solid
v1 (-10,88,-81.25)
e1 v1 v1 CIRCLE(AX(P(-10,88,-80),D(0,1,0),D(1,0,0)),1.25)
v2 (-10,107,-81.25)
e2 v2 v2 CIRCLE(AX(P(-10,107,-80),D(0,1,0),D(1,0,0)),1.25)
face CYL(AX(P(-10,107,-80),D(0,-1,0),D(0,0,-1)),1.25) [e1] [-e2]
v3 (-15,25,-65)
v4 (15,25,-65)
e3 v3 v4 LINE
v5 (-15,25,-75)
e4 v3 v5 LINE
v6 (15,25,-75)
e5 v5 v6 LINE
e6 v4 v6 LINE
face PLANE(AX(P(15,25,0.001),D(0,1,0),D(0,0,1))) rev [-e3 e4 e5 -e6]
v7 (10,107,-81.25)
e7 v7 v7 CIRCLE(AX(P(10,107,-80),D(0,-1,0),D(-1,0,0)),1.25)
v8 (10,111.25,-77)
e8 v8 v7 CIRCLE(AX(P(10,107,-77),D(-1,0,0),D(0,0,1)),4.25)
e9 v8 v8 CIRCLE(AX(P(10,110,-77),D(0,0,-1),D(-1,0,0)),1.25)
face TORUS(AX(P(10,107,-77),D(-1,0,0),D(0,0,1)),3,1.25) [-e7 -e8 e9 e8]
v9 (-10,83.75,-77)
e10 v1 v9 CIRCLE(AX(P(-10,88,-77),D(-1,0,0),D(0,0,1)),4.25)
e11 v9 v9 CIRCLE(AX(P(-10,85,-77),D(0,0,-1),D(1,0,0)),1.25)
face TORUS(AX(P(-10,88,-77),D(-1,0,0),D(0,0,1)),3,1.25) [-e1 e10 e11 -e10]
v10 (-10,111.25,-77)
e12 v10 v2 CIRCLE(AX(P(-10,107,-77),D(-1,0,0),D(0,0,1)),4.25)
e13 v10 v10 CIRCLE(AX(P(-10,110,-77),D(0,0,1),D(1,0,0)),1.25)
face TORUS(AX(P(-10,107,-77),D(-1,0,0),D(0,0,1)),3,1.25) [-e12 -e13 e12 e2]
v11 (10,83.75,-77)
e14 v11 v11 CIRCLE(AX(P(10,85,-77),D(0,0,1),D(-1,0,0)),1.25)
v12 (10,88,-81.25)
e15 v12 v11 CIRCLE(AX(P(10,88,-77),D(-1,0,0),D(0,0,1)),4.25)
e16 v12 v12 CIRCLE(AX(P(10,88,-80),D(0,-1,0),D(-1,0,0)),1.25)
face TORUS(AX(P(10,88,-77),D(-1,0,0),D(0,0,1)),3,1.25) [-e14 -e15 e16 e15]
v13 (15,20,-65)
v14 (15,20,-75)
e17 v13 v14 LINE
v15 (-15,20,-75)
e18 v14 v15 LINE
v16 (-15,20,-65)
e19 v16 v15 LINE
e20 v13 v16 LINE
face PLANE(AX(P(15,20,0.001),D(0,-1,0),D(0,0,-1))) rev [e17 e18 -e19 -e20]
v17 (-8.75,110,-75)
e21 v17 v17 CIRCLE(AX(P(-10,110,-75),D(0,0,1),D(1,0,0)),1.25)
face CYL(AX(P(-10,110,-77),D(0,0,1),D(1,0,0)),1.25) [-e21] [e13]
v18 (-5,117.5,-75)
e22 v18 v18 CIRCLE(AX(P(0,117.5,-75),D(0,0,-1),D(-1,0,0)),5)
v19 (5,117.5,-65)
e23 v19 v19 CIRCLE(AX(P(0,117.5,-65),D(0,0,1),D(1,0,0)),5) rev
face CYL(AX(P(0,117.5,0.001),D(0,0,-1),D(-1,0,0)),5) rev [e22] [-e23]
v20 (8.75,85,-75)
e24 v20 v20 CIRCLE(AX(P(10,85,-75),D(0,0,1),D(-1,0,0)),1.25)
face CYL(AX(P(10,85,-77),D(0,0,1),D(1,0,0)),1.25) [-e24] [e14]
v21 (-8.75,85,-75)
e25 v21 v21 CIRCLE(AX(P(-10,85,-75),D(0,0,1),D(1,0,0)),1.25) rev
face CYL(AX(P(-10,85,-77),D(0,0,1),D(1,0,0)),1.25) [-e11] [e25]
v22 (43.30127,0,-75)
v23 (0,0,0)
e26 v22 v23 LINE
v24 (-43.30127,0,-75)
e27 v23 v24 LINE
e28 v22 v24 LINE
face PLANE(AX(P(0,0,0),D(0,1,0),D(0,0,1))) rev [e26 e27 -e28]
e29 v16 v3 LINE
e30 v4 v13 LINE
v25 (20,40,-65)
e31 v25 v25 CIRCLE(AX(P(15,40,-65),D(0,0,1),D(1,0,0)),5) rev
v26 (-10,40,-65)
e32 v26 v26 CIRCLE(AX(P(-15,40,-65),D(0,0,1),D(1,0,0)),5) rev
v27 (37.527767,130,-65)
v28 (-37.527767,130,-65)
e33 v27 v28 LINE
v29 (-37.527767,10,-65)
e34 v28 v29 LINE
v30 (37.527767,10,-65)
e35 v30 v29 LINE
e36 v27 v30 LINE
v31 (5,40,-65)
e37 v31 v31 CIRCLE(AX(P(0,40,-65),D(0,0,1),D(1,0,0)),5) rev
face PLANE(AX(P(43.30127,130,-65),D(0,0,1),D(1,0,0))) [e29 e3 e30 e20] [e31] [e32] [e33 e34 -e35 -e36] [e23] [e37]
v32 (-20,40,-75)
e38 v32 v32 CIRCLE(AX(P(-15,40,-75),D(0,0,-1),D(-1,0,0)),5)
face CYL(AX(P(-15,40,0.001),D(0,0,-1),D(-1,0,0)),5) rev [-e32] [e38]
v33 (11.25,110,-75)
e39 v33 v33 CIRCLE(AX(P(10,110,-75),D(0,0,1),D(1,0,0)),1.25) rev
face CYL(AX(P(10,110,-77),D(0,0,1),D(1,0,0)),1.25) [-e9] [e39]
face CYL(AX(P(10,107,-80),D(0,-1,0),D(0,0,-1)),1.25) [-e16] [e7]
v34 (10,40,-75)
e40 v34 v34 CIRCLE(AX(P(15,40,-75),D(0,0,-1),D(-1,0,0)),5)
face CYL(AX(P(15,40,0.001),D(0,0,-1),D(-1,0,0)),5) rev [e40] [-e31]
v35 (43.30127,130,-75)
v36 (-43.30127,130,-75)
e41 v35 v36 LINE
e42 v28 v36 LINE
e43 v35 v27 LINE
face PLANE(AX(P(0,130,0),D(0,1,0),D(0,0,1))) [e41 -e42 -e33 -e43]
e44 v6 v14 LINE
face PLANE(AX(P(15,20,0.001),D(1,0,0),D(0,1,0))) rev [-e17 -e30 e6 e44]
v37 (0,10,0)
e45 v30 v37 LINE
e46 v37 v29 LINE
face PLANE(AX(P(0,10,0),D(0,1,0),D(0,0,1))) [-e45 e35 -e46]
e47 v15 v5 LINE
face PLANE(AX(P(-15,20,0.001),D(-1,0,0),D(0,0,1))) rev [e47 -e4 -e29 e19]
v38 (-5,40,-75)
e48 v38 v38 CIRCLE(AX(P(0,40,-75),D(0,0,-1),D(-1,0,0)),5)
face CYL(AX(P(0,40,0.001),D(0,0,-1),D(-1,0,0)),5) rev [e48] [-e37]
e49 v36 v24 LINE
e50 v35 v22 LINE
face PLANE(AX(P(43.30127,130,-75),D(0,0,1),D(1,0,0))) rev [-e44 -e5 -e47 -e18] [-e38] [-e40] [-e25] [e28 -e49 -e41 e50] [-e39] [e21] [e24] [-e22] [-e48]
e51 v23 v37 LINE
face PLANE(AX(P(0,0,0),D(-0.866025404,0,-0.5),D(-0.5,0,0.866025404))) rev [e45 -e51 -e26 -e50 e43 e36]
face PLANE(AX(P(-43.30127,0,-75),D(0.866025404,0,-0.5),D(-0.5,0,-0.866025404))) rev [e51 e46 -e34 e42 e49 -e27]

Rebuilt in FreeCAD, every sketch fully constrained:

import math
import FreeCAD as App
import Part
import Sketcher

V = App.Vector
Q = App.Units.Quantity


def faces_at(feature, points):
    """Names of the faces that lie closest to the given points."""
    faces = feature.Shape.Faces
    near = lambda p: min(range(len(faces)), key=lambda i: faces[i].distToShape(Part.Vertex(*p))[0])
    return sorted({f"Face{near(p) + 1}" for p in points})

doc = App.newDocument("Part")
body = doc.addObject("PartDesign::Body", "Body")

# Sketch on XZ plane
sketch1 = doc.addObject("Sketcher::SketchObject", "Sketch")
body.addObject(sketch1)
sketch1.AttachmentSupport = (doc.XZ_Plane, [""])
sketch1.MapMode = "FlatFace"
sketch1.addGeometry([
    Part.LineSegment(V(87, 0, 0), V(43, -75, 0)),  # 0
    Part.LineSegment(V(43, -75, 0), V(-43, -75, 0)),  # 1
    Part.LineSegment(V(-43, -75, 0), V(-87, 0, 0)),  # 2
    Part.LineSegment(V(-87, 0, 0), V(-43, 75, 0)),  # 3
    Part.LineSegment(V(-43, 75, 0), V(43, 75, 0)),  # 4
    Part.LineSegment(V(43, 75, 0), V(87, 0, 0)),  # 5
], False)
sketch1.addConstraint([
    Sketcher.Constraint("Coincident", 0, 2, 1, 1),
    Sketcher.Constraint("Coincident", 1, 2, 2, 1),
    Sketcher.Constraint("Coincident", 2, 2, 3, 1),
    Sketcher.Constraint("Coincident", 3, 2, 4, 1),
    Sketcher.Constraint("Coincident", 4, 2, 5, 1),
    Sketcher.Constraint("Coincident", 5, 2, 0, 1),
    Sketcher.Constraint("Horizontal", 1),
    Sketcher.Constraint("Horizontal", 4),
    Sketcher.Constraint("Symmetric", 0, 2, 3, 2, -1, 1),
    Sketcher.Constraint("Symmetric", 2, 2, 5, 2, -1, 1),
    Sketcher.Constraint("PointOnObject", 2, 2, -1),
    Sketcher.Constraint("Parallel", 2, 5),
    Sketcher.Constraint("Vertical", 1, 2, 3, 2),
    Sketcher.Constraint("Angle", 0, Q("-120 deg")),
    Sketcher.Constraint("DistanceY", 0, 2, -1, 1, Q("75 mm")),
    Sketcher.Constraint("DistanceX", 1, 2, 1, 1, Q("86.60254 mm")),
])
pad1 = doc.addObject("PartDesign::Pad", "Pad")
body.addObject(pad1)
pad1.Profile = sketch1
pad1.Length = 130
pad1.Reversed = True
doc.recompute()

thickness = doc.addObject("PartDesign::Thickness", "Thickness")
body.addObject(thickness)
thickness.Base = (pad1, faces_at(pad1, [(0, 130, 0)]))
thickness.Value = 10
thickness.Reversed = True
thickness.Join = "Intersection"

# Sketch on XZ plane
sketch2 = doc.addObject("Sketcher::SketchObject", "Sketch001")
body.addObject(sketch2)
sketch2.AttachmentSupport = (doc.XZ_Plane, [""])
sketch2.MapMode = "FlatFace"
sketch2.AttachmentOffset = App.Placement(V(0, 0, -130), App.Rotation())
sketch2.addGeometry([
    Part.LineSegment(V(0, 0, 0), V(-43, -75, 0)),  # 0
    Part.LineSegment(V(-43, -75, 0), V(-87, 0, 0)),  # 1
    Part.LineSegment(V(-87, 0, 0), V(-43, 75, 0)),  # 2
    Part.LineSegment(V(-43, 75, 0), V(43, 75, 0)),  # 3
    Part.LineSegment(V(43, 75, 0), V(87, 0, 0)),  # 4
    Part.LineSegment(V(87, 0, 0), V(43, -75, 0)),  # 5
    Part.LineSegment(V(43, -75, 0), V(0, 0, 0)),  # 6
], False)
sketch2.addConstraint([
    Sketcher.Constraint("Coincident", 0, 2, 1, 1),
    Sketcher.Constraint("Coincident", 1, 2, 2, 1),
    Sketcher.Constraint("Coincident", 2, 2, 3, 1),
    Sketcher.Constraint("Coincident", 3, 2, 4, 1),
    Sketcher.Constraint("Coincident", 4, 2, 5, 1),
    Sketcher.Constraint("Coincident", 5, 2, 6, 1),
    Sketcher.Constraint("Coincident", 6, 2, 0, 1),
    Sketcher.Constraint("Horizontal", 3),
    Sketcher.Constraint("Coincident", 6, 2, -1, 1),
    Sketcher.Constraint("Symmetric", 0, 2, 3, 2, -1, 1),
    Sketcher.Constraint("Symmetric", 1, 2, 4, 2, -1, 1),
    Sketcher.Constraint("Symmetric", 2, 2, 5, 2, -1, 1),
    Sketcher.Constraint("PointOnObject", 1, 2, -1),
    Sketcher.Constraint("Parallel", 0, 2),
    Sketcher.Constraint("Vertical", 0, 2, 2, 2),
    Sketcher.Constraint("Angle", 0, Q("-120 deg")),
    Sketcher.Constraint("DistanceY", 0, 2, -1, 1, Q("75 mm")),
])
pocket1 = doc.addObject("PartDesign::Pocket", "Pocket")
body.addObject(pocket1)
pocket1.Profile = sketch2
pocket1.Type = "ThroughAll"
pocket1.Reversed = True

# Sketch on XY plane
sketch3 = doc.addObject("Sketcher::SketchObject", "Sketch002")
body.addObject(sketch3)
sketch3.AttachmentSupport = (doc.XY_Plane, [""])
sketch3.MapMode = "FlatFace"
sketch3.AttachmentOffset = App.Placement(V(0, 0, -75), App.Rotation())
sketch3.addGeometry(Part.Circle(V(15, 40, 0), V(0, 0, 1), 5), False)
sketch3.addConstraint([
    Sketcher.Constraint("Diameter", 0, Q("10 mm")),
    Sketcher.Constraint("DistanceX", -1, 1, 0, 3, Q("15 mm")),
    Sketcher.Constraint("DistanceY", -1, 1, 0, 3, Q("40 mm")),
])
pocket2 = doc.addObject("PartDesign::Pocket", "Pocket001")
body.addObject(pocket2)
pocket2.Profile = sketch3
pocket2.Type = "UpToFirst"
pocket2.Reversed = True

# Sketch on XY plane
sketch4 = doc.addObject("Sketcher::SketchObject", "Sketch003")
body.addObject(sketch4)
sketch4.AttachmentSupport = (doc.XY_Plane, [""])
sketch4.MapMode = "FlatFace"
sketch4.AttachmentOffset = App.Placement(V(0, 0, -75), App.Rotation())
sketch4.addGeometry(Part.Circle(V(0, 40, 0), V(0, 0, 1), 5), False)
sketch4.addConstraint([
    Sketcher.Constraint("PointOnObject", 0, 3, -2),
    Sketcher.Constraint("Diameter", 0, Q("10 mm")),
    Sketcher.Constraint("DistanceY", -1, 1, 0, 3, Q("40 mm")),
])
pocket3 = doc.addObject("PartDesign::Pocket", "Pocket002")
body.addObject(pocket3)
pocket3.Profile = sketch4
pocket3.Type = "UpToFirst"
pocket3.Reversed = True

# Sketch on XY plane
sketch5 = doc.addObject("Sketcher::SketchObject", "Sketch004")
body.addObject(sketch5)
sketch5.AttachmentSupport = (doc.XY_Plane, [""])
sketch5.MapMode = "FlatFace"
sketch5.AttachmentOffset = App.Placement(V(0, 0, -75), App.Rotation())
sketch5.addGeometry(Part.Circle(V(-15, 40, 0), V(0, 0, 1), 5), False)
sketch5.addConstraint([
    Sketcher.Constraint("Diameter", 0, Q("10 mm")),
    Sketcher.Constraint("DistanceX", 0, 3, -1, 1, Q("15 mm")),
    Sketcher.Constraint("DistanceY", -1, 1, 0, 3, Q("40 mm")),
])
pocket4 = doc.addObject("PartDesign::Pocket", "Pocket003")
body.addObject(pocket4)
pocket4.Profile = sketch5
pocket4.Type = "UpToFirst"
pocket4.Reversed = True

# Sketch on XY plane
sketch6 = doc.addObject("Sketcher::SketchObject", "Sketch005")
body.addObject(sketch6)
sketch6.AttachmentSupport = (doc.XY_Plane, [""])
sketch6.MapMode = "FlatFace"
sketch6.AttachmentOffset = App.Placement(V(0, 0, -75), App.Rotation())
sketch6.addGeometry(Part.Circle(V(0, 118, 0), V(0, 0, 1), 5), False)
sketch6.addConstraint([
    Sketcher.Constraint("PointOnObject", 0, 3, -2),
    Sketcher.Constraint("Diameter", 0, Q("10 mm")),
    Sketcher.Constraint("DistanceY", -1, 1, 0, 3, Q("117.5 mm")),
])
pocket5 = doc.addObject("PartDesign::Pocket", "Pocket004")
body.addObject(pocket5)
pocket5.Profile = sketch6
pocket5.Type = "UpToFirst"
pocket5.Reversed = True

# Sketch on XY plane
sketch7 = doc.addObject("Sketcher::SketchObject", "Sketch006")
body.addObject(sketch7)
sketch7.AttachmentSupport = (doc.XY_Plane, [""])
sketch7.MapMode = "FlatFace"
sketch7.AttachmentOffset = App.Placement(V(0, 0, -75), App.Rotation())
sketch7.addGeometry([
    Part.LineSegment(V(15, 25, 0), V(15, 20, 0)),
    Part.LineSegment(V(15, 20, 0), V(-15, 20, 0)),
    Part.LineSegment(V(-15, 20, 0), V(-15, 25, 0)),
    Part.LineSegment(V(-15, 25, 0), V(15, 25, 0)),
], False)
sketch7.addConstraint([
    Sketcher.Constraint("Coincident", 0, 2, 1, 1),
    Sketcher.Constraint("Coincident", 1, 2, 2, 1),
    Sketcher.Constraint("Coincident", 2, 2, 3, 1),
    Sketcher.Constraint("Coincident", 3, 2, 0, 1),
    Sketcher.Constraint("Vertical", 0),
    Sketcher.Constraint("Horizontal", 1),
    Sketcher.Constraint("Vertical", 2),
    Sketcher.Constraint("Horizontal", 3),
    Sketcher.Constraint("DistanceX", 1, 2, 1, 1, Q("30 mm")),
    Sketcher.Constraint("DistanceY", 0, 2, 0, 1, Q("5 mm")),
    Sketcher.Constraint("DistanceX", -1, 1, 0, 2, Q("15 mm")),
    Sketcher.Constraint("DistanceY", -1, 1, 0, 2, Q("20 mm")),
])
pocket6 = doc.addObject("PartDesign::Pocket", "Pocket005")
body.addObject(pocket6)
pocket6.Profile = sketch7
pocket6.Type = "UpToFirst"
pocket6.Reversed = True

# Sketch on XY plane
sketch8 = doc.addObject("Sketcher::SketchObject", "Sketch007")
body.addObject(sketch8)
sketch8.AttachmentSupport = (doc.XY_Plane, [""])
sketch8.MapMode = "FlatFace"
sketch8.AttachmentOffset = App.Placement(V(0, 0, -75), App.Rotation())
sketch8.addGeometry(Part.Circle(V(10, 110, 0), V(0, 0, 1), 1.2), False)
sketch8.addConstraint([
    Sketcher.Constraint("Diameter", 0, Q("2.5 mm")),
    Sketcher.Constraint("DistanceX", -1, 1, 0, 3, Q("10 mm")),
    Sketcher.Constraint("DistanceY", -1, 1, 0, 3, Q("110 mm")),
])

# Sketch on YZ plane
sketch9 = doc.addObject("Sketcher::SketchObject", "Sketch008")
body.addObject(sketch9)
sketch9.AttachmentSupport = (doc.YZ_Plane, [""])
sketch9.MapMode = "FlatFace"
sketch9.AttachmentOffset = App.Placement(V(0, 0, 10), App.Rotation())
sketch9.addGeometry([
    Part.LineSegment(V(110, -75, 0), V(110, -77, 0)),  # 0
    Part.ArcOfCircle(Part.Circle(V(107, -77, 0), V(0, 0, 1), 3), math.radians(-90), math.radians(0)),  # 1
    Part.LineSegment(V(107, -80, 0), V(88, -80, 0)),  # 2
    Part.ArcOfCircle(Part.Circle(V(88, -77, 0), V(0, 0, 1), 3), math.radians(180), math.radians(270)),  # 3
    Part.LineSegment(V(85, -77, 0), V(85, -75, 0)),  # 4
], False)
sketch9.addConstraint([
    Sketcher.Constraint("Tangent", 0, 2, 1, 2),
    Sketcher.Constraint("Tangent", 1, 1, 2, 1),
    Sketcher.Constraint("Tangent", 2, 2, 3, 2),
    Sketcher.Constraint("Tangent", 3, 1, 4, 1),
    Sketcher.Constraint("Vertical", 0),
    Sketcher.Constraint("Horizontal", 2),
    Sketcher.Constraint("Vertical", 4),
    Sketcher.Constraint("Equal", 1, 3),
    Sketcher.Constraint("Horizontal", 0, 1, 4, 2),
    Sketcher.Constraint("Radius", 1, Q("3 mm")),
    Sketcher.Constraint("DistanceX", 2, 2, 2, 1, Q("19 mm")),
    Sketcher.Constraint("DistanceY", 0, 2, 0, 1, Q("2 mm")),
    Sketcher.Constraint("DistanceX", -1, 1, 1, 3, Q("107 mm")),
    Sketcher.Constraint("DistanceY", 1, 3, -1, 1, Q("77 mm")),
])
doc.recompute()

additivepipe = doc.addObject("PartDesign::AdditivePipe", "AdditivePipe")
body.addObject(additivepipe)
additivepipe.Profile = sketch8
additivepipe.Spine = (sketch9, ["Edge1", "Edge2", "Edge3", "Edge4", "Edge5"])
doc.recompute()

mirrored = doc.addObject("PartDesign::Mirrored", "Mirrored")
body.addObject(mirrored)
mirrored.Originals = [additivepipe]
mirrored.MirrorPlane = (doc.YZ_Plane, [""])
body.Tip = mirrored

doc.recompute()
